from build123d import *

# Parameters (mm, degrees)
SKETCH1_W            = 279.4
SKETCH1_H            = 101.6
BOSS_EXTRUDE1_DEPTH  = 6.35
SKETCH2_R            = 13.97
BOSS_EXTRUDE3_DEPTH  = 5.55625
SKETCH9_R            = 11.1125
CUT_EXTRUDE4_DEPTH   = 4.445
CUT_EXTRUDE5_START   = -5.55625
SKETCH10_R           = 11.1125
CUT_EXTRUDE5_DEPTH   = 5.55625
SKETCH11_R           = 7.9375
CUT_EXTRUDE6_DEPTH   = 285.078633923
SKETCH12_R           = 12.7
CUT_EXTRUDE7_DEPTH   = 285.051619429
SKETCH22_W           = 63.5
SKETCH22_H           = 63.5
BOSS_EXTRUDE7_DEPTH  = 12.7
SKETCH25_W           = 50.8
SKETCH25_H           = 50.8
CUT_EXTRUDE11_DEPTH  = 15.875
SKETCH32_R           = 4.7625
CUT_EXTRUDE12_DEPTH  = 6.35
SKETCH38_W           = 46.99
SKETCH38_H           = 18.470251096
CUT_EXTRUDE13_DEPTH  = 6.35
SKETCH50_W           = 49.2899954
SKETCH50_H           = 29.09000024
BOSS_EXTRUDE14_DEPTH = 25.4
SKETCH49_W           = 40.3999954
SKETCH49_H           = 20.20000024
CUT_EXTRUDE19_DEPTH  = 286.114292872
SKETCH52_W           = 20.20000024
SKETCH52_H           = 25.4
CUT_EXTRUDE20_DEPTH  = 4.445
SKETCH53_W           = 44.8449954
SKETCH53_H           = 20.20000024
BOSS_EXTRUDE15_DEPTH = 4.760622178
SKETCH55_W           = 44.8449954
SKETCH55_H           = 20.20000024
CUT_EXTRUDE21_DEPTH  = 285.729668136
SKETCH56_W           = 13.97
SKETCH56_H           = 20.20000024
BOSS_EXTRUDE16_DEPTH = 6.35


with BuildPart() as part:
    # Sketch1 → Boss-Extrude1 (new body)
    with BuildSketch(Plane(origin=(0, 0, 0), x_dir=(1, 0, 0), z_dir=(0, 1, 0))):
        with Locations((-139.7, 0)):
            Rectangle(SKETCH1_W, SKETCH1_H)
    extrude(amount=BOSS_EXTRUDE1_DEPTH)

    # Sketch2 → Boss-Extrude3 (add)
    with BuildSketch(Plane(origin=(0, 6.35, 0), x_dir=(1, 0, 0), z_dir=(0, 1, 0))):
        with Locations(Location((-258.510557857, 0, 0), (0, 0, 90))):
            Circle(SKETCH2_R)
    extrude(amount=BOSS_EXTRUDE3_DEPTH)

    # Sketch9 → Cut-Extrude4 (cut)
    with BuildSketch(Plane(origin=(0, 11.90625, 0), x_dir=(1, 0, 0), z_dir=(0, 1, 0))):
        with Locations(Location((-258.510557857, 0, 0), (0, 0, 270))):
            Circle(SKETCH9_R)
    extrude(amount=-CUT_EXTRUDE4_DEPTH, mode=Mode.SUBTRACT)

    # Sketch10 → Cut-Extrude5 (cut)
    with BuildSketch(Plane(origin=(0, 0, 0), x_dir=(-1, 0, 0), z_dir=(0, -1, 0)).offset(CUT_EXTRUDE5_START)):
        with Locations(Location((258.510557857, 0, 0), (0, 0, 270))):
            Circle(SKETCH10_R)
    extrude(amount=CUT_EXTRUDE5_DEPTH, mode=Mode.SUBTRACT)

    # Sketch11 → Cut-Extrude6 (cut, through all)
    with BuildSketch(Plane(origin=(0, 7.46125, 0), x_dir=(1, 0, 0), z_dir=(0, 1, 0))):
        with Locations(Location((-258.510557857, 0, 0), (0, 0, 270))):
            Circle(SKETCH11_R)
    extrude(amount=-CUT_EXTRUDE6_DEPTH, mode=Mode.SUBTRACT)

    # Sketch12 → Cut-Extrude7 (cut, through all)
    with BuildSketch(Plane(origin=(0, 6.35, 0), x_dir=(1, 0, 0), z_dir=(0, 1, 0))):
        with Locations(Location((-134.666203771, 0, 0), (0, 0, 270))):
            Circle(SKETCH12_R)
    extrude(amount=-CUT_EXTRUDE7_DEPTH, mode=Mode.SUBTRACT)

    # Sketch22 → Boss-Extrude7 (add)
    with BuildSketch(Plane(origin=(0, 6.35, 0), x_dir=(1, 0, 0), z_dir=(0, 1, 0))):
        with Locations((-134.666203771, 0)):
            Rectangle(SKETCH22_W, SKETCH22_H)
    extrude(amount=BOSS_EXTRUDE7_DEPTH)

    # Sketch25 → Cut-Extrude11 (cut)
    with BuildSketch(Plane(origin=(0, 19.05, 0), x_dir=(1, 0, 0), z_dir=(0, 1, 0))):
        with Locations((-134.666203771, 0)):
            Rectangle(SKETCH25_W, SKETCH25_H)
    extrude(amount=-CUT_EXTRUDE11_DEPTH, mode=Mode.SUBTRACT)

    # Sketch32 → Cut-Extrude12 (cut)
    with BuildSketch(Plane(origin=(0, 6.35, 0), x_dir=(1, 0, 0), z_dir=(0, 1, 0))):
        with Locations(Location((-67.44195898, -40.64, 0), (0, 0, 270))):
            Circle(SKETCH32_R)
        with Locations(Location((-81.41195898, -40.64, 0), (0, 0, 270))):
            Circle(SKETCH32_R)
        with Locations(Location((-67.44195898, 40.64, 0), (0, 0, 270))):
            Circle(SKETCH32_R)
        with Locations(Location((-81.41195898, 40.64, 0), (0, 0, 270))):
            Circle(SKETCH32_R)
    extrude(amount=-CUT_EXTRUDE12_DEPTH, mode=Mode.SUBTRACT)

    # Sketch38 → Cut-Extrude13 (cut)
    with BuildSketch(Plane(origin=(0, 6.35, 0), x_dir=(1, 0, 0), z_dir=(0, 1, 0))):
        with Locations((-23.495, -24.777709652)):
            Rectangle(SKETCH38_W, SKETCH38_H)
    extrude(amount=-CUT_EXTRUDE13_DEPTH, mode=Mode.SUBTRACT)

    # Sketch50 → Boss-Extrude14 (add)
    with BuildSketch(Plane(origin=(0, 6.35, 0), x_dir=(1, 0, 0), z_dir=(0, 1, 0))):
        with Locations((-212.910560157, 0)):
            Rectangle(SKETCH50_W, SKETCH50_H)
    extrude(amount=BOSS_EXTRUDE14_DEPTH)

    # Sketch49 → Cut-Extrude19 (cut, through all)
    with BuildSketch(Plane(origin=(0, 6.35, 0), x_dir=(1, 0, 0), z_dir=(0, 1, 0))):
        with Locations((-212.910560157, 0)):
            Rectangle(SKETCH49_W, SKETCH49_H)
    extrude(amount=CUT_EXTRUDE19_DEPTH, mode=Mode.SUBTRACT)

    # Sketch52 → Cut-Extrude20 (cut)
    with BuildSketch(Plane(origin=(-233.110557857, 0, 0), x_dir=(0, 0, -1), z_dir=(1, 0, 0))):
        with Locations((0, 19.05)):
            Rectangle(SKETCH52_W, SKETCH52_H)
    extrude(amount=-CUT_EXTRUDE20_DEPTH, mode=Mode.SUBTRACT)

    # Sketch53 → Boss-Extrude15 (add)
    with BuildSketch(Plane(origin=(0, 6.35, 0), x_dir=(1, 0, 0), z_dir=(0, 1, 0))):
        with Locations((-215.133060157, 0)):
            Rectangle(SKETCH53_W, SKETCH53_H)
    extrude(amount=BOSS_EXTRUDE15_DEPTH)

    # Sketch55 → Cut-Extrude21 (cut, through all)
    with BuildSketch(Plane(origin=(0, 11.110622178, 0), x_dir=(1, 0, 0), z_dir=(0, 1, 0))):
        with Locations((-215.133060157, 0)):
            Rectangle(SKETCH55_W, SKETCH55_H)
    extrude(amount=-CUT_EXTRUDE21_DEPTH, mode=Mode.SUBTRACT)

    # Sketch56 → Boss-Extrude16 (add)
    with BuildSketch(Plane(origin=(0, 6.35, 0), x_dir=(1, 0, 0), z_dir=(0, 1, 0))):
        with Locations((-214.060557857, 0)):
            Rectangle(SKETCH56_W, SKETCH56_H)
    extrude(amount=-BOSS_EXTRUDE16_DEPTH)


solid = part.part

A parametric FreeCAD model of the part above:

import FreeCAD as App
import Part
import Sketcher
Q = App.Units.Quantity


def add_polygon(sketch, points):
    """Adds a closed chain of lines whose ends are joined by coincident constraints."""
    first, n = sketch.GeometryCount, len(points)
    for a, b in zip(points, points[1:] + points[:1]):
        sketch.addGeometry(Part.LineSegment(App.Vector(*a, 0), App.Vector(*b, 0)), False)
    for i in range(n):
        sketch.addConstraint(Sketcher.Constraint("Coincident", first + i, 2, first + (i + 1) % n, 1))

doc = App.newDocument("Part")
params = doc.addObject("Spreadsheet::Sheet", "Params")
for row, (alias, value) in enumerate([
    ("sketch1_width", "11 in"),
    ("sketch1_height", "4 in"),
    ("pad1_length", "0.25 in"),
    ("sketch2_diameter", "1.1 in"),
    ("pad2_length", "0.21875 in"),
    ("sketch3_diameter", "0.875 in"),
    ("pocket1_length", "0.175 in"),
    ("sketch4_diameter", "0.875 in"),
    ("pocket2_length", "0.21875 in"),
    ("sketch5_diameter", "0.625 in"),
    ("sketch6_diameter", "1 in"),
    ("sketch7_width", "2.5 in"),
    ("pad3_length", "0.5 in"),
    ("sketch8_width", "2 in"),
    ("pocket5_length", "0.625 in"),
    ("sketch9_diameter", "0.375 in"),
    ("pocket6_length", "0.25 in"),
    ("sketch10_width", "1.85 in"),
    ("pocket7_length", "0.25 in"),
    ("pad4_length", "1 in"),
    ("sketch13_width", "1 in"),
    ("pocket9_length", "0.175 in"),
    ("pad5_length", "4.760622 mm"),
    ("sketch16_width", "0.55 in"),
    ("pad6_length", "0.25 in"),
], start=1):
    params.set(f"A{row}", alias)
    params.set(f"B{row}", "=" + value)
    params.setAlias(f"B{row}", alias)

body = doc.addObject("PartDesign::Body", "Body")

sketch1 = body.newObject("Sketcher::SketchObject", "Sketch")
sketch1.AttachmentSupport = (doc.getObject("XZ_Plane"), [""])
sketch1.MapMode = "FlatFace"
add_polygon(sketch1, [(-279, -51), (-279, 51), (0, 51), (0, -51)])
sketch1.addConstraint(Sketcher.Constraint("Vertical", 0))
sketch1.addConstraint(Sketcher.Constraint("Horizontal", 1))
sketch1.addConstraint(Sketcher.Constraint("Vertical", 2))
sketch1.addConstraint(Sketcher.Constraint("Horizontal", 3))
sketch1.addConstraint(Sketcher.Constraint("Symmetric", 1, 2, 2, 2, -1, 1))
sketch1.addConstraint(Sketcher.Constraint("DistanceX", 1, 1, 1, 2, Q("11 in")))
sketch1.addConstraint(Sketcher.Constraint("DistanceY", 0, 1, 0, 2, Q("4 in")))
sketch1.setExpression("Constraints[9]", "Params.sketch1_width")
sketch1.setExpression("Constraints[10]", "Params.sketch1_height")
pad1 = body.newObject("PartDesign::Pad", "Pad")
pad1.Profile = sketch1
pad1.setExpression("Length", "Params.pad1_length")
pad1.Reversed = True

sketch2 = body.newObject("Sketcher::SketchObject", "Sketch001")
sketch2.AttachmentSupport = (doc.getObject("XZ_Plane"), [""])
sketch2.MapMode = "FlatFace"
sketch2.AttachmentOffset = App.Placement(App.Vector(0, 0, -0.25 * 25.4), App.Rotation())
sketch2.addGeometry(Part.Circle(App.Vector(-259, 0, 0), App.Vector(0, 0, 1), 14), False)
sketch2.addConstraint(Sketcher.Constraint("PointOnObject", 0, 3, -1))
sketch2.addConstraint(Sketcher.Constraint("Diameter", 0, Q("1.1 in")))
sketch2.addConstraint(Sketcher.Constraint("DistanceX", 0, 3, -1, 1, Q("258.510558 mm")))
sketch2.setExpression("Constraints[1]", "Params.sketch2_diameter")
pad2 = body.newObject("PartDesign::Pad", "Pad001")
pad2.Profile = sketch2
pad2.setExpression("Length", "Params.pad2_length")
pad2.Reversed = True

sketch3 = body.newObject("Sketcher::SketchObject", "Sketch002")
sketch3.AttachmentSupport = (doc.getObject("XZ_Plane"), [""])
sketch3.MapMode = "FlatFace"
sketch3.AttachmentOffset = App.Placement(App.Vector(0, 0, -0.46875 * 25.4), App.Rotation())
sketch3.addGeometry(Part.Circle(App.Vector(-259, 0, 0), App.Vector(0, 0, 1), 11), False)
sketch3.addConstraint(Sketcher.Constraint("PointOnObject", 0, 3, -1))
sketch3.addConstraint(Sketcher.Constraint("Diameter", 0, Q("0.875 in")))
sketch3.addConstraint(Sketcher.Constraint("DistanceX", 0, 3, -1, 1, Q("258.510558 mm")))
sketch3.setExpression("Constraints[1]", "Params.sketch3_diameter")
pocket1 = body.newObject("PartDesign::Pocket", "Pocket")
pocket1.Profile = sketch3
pocket1.setExpression("Length", "Params.pocket1_length")
pocket1.Reversed = True

sketch4 = body.newObject("Sketcher::SketchObject", "Sketch003")
sketch4.AttachmentSupport = (doc.getObject("XZ_Plane"), [""])
sketch4.MapMode = "FlatFace"
sketch4.AttachmentOffset = App.Placement(App.Vector(0, 0, -0.21875 * 25.4), App.Rotation())
sketch4.addGeometry(Part.Circle(App.Vector(-259, 0, 0), App.Vector(0, 0, 1), 11), False)
sketch4.addConstraint(Sketcher.Constraint("PointOnObject", 0, 3, -1))
sketch4.addConstraint(Sketcher.Constraint("Diameter", 0, Q("0.875 in")))
sketch4.addConstraint(Sketcher.Constraint("DistanceX", 0, 3, -1, 1, Q("258.510558 mm")))
sketch4.setExpression("Constraints[1]", "Params.sketch4_diameter")
pocket2 = body.newObject("PartDesign::Pocket", "Pocket001")
pocket2.Profile = sketch4
pocket2.setExpression("Length", "Params.pocket2_length")
pocket2.Reversed = True

sketch5 = body.newObject("Sketcher::SketchObject", "Sketch004")
sketch5.AttachmentSupport = (doc.getObject("XZ_Plane"), [""])
sketch5.MapMode = "FlatFace"
sketch5.AttachmentOffset = App.Placement(App.Vector(0, 0, -7.46125), App.Rotation())
sketch5.addGeometry(Part.Circle(App.Vector(-259, 0, 0), App.Vector(0, 0, 1), 8), False)
sketch5.addConstraint(Sketcher.Constraint("PointOnObject", 0, 3, -1))
sketch5.addConstraint(Sketcher.Constraint("Diameter", 0, Q("0.625 in")))
sketch5.addConstraint(Sketcher.Constraint("DistanceX", 0, 3, -1, 1, Q("258.510558 mm")))
sketch5.setExpression("Constraints[1]", "Params.sketch5_diameter")
pocket3 = body.newObject("PartDesign::Pocket", "Pocket002")
pocket3.Profile = sketch5
pocket3.Type = "ThroughAll"
pocket3.Reversed = True

sketch6 = body.newObject("Sketcher::SketchObject", "Sketch005")
sketch6.AttachmentSupport = (doc.getObject("XZ_Plane"), [""])
sketch6.MapMode = "FlatFace"
sketch6.AttachmentOffset = App.Placement(App.Vector(0, 0, -0.25 * 25.4), App.Rotation())
sketch6.addGeometry(Part.Circle(App.Vector(-135, 0, 0), App.Vector(0, 0, 1), 13), False)
sketch6.addConstraint(Sketcher.Constraint("PointOnObject", 0, 3, -1))
sketch6.addConstraint(Sketcher.Constraint("Diameter", 0, Q("1 in")))
sketch6.addConstraint(Sketcher.Constraint("DistanceX", 0, 3, -1, 1, Q("134.666204 mm")))
sketch6.setExpression("Constraints[1]", "Params.sketch6_diameter")
pocket4 = body.newObject("PartDesign::Pocket", "Pocket003")
pocket4.Profile = sketch6
pocket4.Type = "ThroughAll"
pocket4.Reversed = True

sketch7 = body.newObject("Sketcher::SketchObject", "Sketch006")
sketch7.AttachmentSupport = (doc.getObject("XZ_Plane"), [""])
sketch7.MapMode = "FlatFace"
sketch7.AttachmentOffset = App.Placement(App.Vector(0, 0, -0.25 * 25.4), App.Rotation())
add_polygon(sketch7, [(-166, -32), (-166, 32), (-103, 32), (-103, -32)])
sketch7.addConstraint(Sketcher.Constraint("Vertical", 0))
sketch7.addConstraint(Sketcher.Constraint("Horizontal", 1))
sketch7.addConstraint(Sketcher.Constraint("Vertical", 2))
sketch7.addConstraint(Sketcher.Constraint("Horizontal", 3))
sketch7.addConstraint(Sketcher.Constraint("Equal", 3, 0))
sketch7.addConstraint(Sketcher.Constraint("DistanceX", 1, 1, 1, 2, Q("2.5 in")))
sketch7.addConstraint(Sketcher.Constraint("DistanceY", -1, 1, 0, 2, Q("1.25 in")))
sketch7.addConstraint(Sketcher.Constraint("DistanceX", 0, 2, -1, 1, Q("166.416204 mm")))
sketch7.setExpression("Constraints[9]", "Params.sketch7_width")
pad3 = body.newObject("PartDesign::Pad", "Pad002")
pad3.Profile = sketch7
pad3.setExpression("Length", "Params.pad3_length")
pad3.Reversed = True

sketch8 = body.newObject("Sketcher::SketchObject", "Sketch007")
sketch8.AttachmentSupport = (doc.getObject("XZ_Plane"), [""])
sketch8.MapMode = "FlatFace"
sketch8.AttachmentOffset = App.Placement(App.Vector(0, 0, -0.75 * 25.4), App.Rotation())
add_polygon(sketch8, [(-160, -25), (-160, 25), (-109, 25), (-109, -25)])
sketch8.addConstraint(Sketcher.Constraint("Vertical", 0))
sketch8.addConstraint(Sketcher.Constraint("Horizontal", 1))
sketch8.addConstraint(Sketcher.Constraint("Vertical", 2))
sketch8.addConstraint(Sketcher.Constraint("Horizontal", 3))
sketch8.addConstraint(Sketcher.Constraint("Equal", 3, 0))
sketch8.addConstraint(Sketcher.Constraint("DistanceX", 1, 1, 1, 2, Q("2 in")))
sketch8.addConstraint(Sketcher.Constraint("DistanceY", -1, 1, 0, 2, Q("1 in")))
sketch8.addConstraint(Sketcher.Constraint("DistanceX", 0, 2, -1, 1, Q("160.066204 mm")))
sketch8.setExpression("Constraints[9]", "Params.sketch8_width")
pocket5 = body.newObject("PartDesign::Pocket", "Pocket004")
pocket5.Profile = sketch8
pocket5.setExpression("Length", "Params.pocket5_length")
pocket5.Reversed = True

sketch9 = body.newObject("Sketcher::SketchObject", "Sketch008")
sketch9.AttachmentSupport = (doc.getObject("XZ_Plane"), [""])
sketch9.MapMode = "FlatFace"
sketch9.AttachmentOffset = App.Placement(App.Vector(0, 0, -0.25 * 25.4), App.Rotation())
sketch9.addGeometry(Part.Circle(App.Vector(-67.4, 40.6, 0), App.Vector(0, 0, 1), 4.8), False)
sketch9.addGeometry(Part.Circle(App.Vector(-81.4, 40.6, 0), App.Vector(0, 0, 1), 4.8), False)
sketch9.addGeometry(Part.Circle(App.Vector(-67.4, -40.6, 0), App.Vector(0, 0, 1), 4.8), False)
sketch9.addGeometry(Part.Circle(App.Vector(-81.4, -40.6, 0), App.Vector(0, 0, 1), 4.8), False)
sketch9.addConstraint(Sketcher.Constraint("Equal", 0, 1))
sketch9.addConstraint(Sketcher.Constraint("Equal", 1, 2))
sketch9.addConstraint(Sketcher.Constraint("Equal", 2, 3))
sketch9.addConstraint(Sketcher.Constraint("Symmetric", 0, 3, 2, 3, -1))
sketch9.addConstraint(Sketcher.Constraint("Symmetric", 1, 3, 3, 3, -1))
sketch9.addConstraint(Sketcher.Constraint("Horizontal", 0, 3, 1, 3))
sketch9.addConstraint(Sketcher.Constraint("Diameter", 0, Q("0.375 in")))
sketch9.addConstraint(Sketcher.Constraint("DistanceY", -1, 1, 0, 3, Q("1.6 in")))
sketch9.addConstraint(Sketcher.Constraint("DistanceX", 1, 3, 0, 3, Q("0.55 in")))
sketch9.addConstraint(Sketcher.Constraint("DistanceX", 0, 3, -1, 1, Q("67.441959 mm")))
sketch9.setExpression("Constraints[6]", "Params.sketch9_diameter")
pocket6 = body.newObject("PartDesign::Pocket", "Pocket005")
pocket6.Profile = sketch9
pocket6.setExpression("Length", "Params.pocket6_length")
pocket6.Reversed = True

sketch10 = body.newObject("Sketcher::SketchObject", "Sketch009")
sketch10.AttachmentSupport = (doc.getObject("XZ_Plane"), [""])
sketch10.MapMode = "FlatFace"
sketch10.AttachmentOffset = App.Placement(App.Vector(0, 0, -0.25 * 25.4), App.Rotation())
add_polygon(sketch10, [(-47, 16), (-47, 34), (0, 34), (0, 16)])
sketch10.addConstraint(Sketcher.Constraint("Vertical", 0))
sketch10.addConstraint(Sketcher.Constraint("Horizontal", 1))
sketch10.addConstraint(Sketcher.Constraint("Vertical", 2))
sketch10.addConstraint(Sketcher.Constraint("Horizontal", 3))
sketch10.addConstraint(Sketcher.Constraint("PointOnObject", 1, 2, -2))
sketch10.addConstraint(Sketcher.Constraint("DistanceX", 1, 1, 1, 2, Q("1.85 in")))
sketch10.addConstraint(Sketcher.Constraint("DistanceY", 0, 1, 0, 2, Q("18.470251 mm")))
sketch10.addConstraint(Sketcher.Constraint("DistanceY", -1, 1, 0, 2, Q("34.012835 mm")))
sketch10.setExpression("Constraints[9]", "Params.sketch10_width")
pocket7 = body.newObject("PartDesign::Pocket", "Pocket006")
pocket7.Profile = sketch10
pocket7.setExpression("Length", "Params.pocket7_length")
pocket7.Reversed = True

sketch11 = body.newObject("Sketcher::SketchObject", "Sketch010")
sketch11.AttachmentSupport = (doc.getObject("XZ_Plane"), [""])
sketch11.MapMode = "FlatFace"
sketch11.AttachmentOffset = App.Placement(App.Vector(0, 0, -0.25 * 25.4), App.Rotation())
add_polygon(sketch11, [(-238, -15), (-238, 15), (-188, 15), (-188, -15)])
sketch11.addConstraint(Sketcher.Constraint("Vertical", 0))
sketch11.addConstraint(Sketcher.Constraint("Horizontal", 1))
sketch11.addConstraint(Sketcher.Constraint("Vertical", 2))
sketch11.addConstraint(Sketcher.Constraint("Horizontal", 3))
sketch11.addConstraint(Sketcher.Constraint("DistanceY", 0, 1, 0, 2, Q("29.09 mm")))
sketch11.addConstraint(Sketcher.Constraint("DistanceY", -1, 1, 0, 2, Q("14.545 mm")))
sketch11.addConstraint(Sketcher.Constraint("DistanceX", 1, 1, 1, 2, Q("49.289995 mm")))
sketch11.addConstraint(Sketcher.Constraint("DistanceX", 0, 2, -1, 1, Q("237.555558 mm")))
pad4 = body.newObject("PartDesign::Pad", "Pad003")
pad4.Profile = sketch11
pad4.setExpression("Length", "Params.pad4_length")
pad4.Reversed = True

sketch12 = body.newObject("Sketcher::SketchObject", "Sketch011")
sketch12.AttachmentSupport = (doc.getObject("XZ_Plane"), [""])
sketch12.MapMode = "FlatFace"
sketch12.AttachmentOffset = App.Placement(App.Vector(0, 0, -0.25 * 25.4), App.Rotation())
add_polygon(sketch12, [(-233, -10), (-233, 10), (-193, 10), (-193, -10)])
sketch12.addConstraint(Sketcher.Constraint("Vertical", 0))
sketch12.addConstraint(Sketcher.Constraint("Horizontal", 1))
sketch12.addConstraint(Sketcher.Constraint("Vertical", 2))
sketch12.addConstraint(Sketcher.Constraint("Horizontal", 3))
sketch12.addConstraint(Sketcher.Constraint("DistanceY", 0, 1, 0, 2, Q("20.2 mm")))
sketch12.addConstraint(Sketcher.Constraint("DistanceY", -1, 1, 0, 2, Q("10.1 mm")))
sketch12.addConstraint(Sketcher.Constraint("DistanceX", 1, 1, 1, 2, Q("40.399995 mm")))
sketch12.addConstraint(Sketcher.Constraint("DistanceX", 0, 2, -1, 1, Q("233.110558 mm")))
pocket8 = body.newObject("PartDesign::Pocket", "Pocket007")
pocket8.Profile = sketch12
pocket8.Type = "ThroughAll"

sketch13 = body.newObject("Sketcher::SketchObject", "Sketch012")
sketch13.AttachmentSupport = (doc.getObject("YZ_Plane"), [""])
sketch13.MapMode = "FlatFace"
sketch13.AttachmentOffset = App.Placement(App.Vector(0, 0, -233.110558), App.Rotation())
add_polygon(sketch13, [(32, 10), (6, 10), (6, -10), (32, -10)])
sketch13.addConstraint(Sketcher.Constraint("Horizontal", 0))
sketch13.addConstraint(Sketcher.Constraint("Vertical", 1))
sketch13.addConstraint(Sketcher.Constraint("Horizontal", 2))
sketch13.addConstraint(Sketcher.Constraint("Vertical", 3))
sketch13.addConstraint(Sketcher.Constraint("DistanceX", 0, 2, 0, 1, Q("1 in")))
sketch13.addConstraint(Sketcher.Constraint("DistanceX", -1, 1, 0, 2, Q("0.25 in")))
sketch13.addConstraint(Sketcher.Constraint("DistanceY", 1, 2, 1, 1, Q("20.2 mm")))
sketch13.addConstraint(Sketcher.Constraint("DistanceY", -1, 1, 0, 2, Q("10.1 mm")))
sketch13.setExpression("Constraints[8]", "Params.sketch13_width")
pocket9 = body.newObject("PartDesign::Pocket", "Pocket008")
pocket9.Profile = sketch13
pocket9.setExpression("Length", "Params.pocket9_length")

sketch14 = body.newObject("Sketcher::SketchObject", "Sketch013")
sketch14.AttachmentSupport = (doc.getObject("XZ_Plane"), [""])
sketch14.MapMode = "FlatFace"
sketch14.AttachmentOffset = App.Placement(App.Vector(0, 0, -0.25 * 25.4), App.Rotation())
add_polygon(sketch14, [(-238, -10), (-238, 10), (-193, 10), (-193, -10)])
sketch14.addConstraint(Sketcher.Constraint("Vertical", 0))
sketch14.addConstraint(Sketcher.Constraint("Horizontal", 1))
sketch14.addConstraint(Sketcher.Constraint("Vertical", 2))
sketch14.addConstraint(Sketcher.Constraint("Horizontal", 3))
sketch14.addConstraint(Sketcher.Constraint("DistanceY", 0, 1, 0, 2, Q("20.2 mm")))
sketch14.addConstraint(Sketcher.Constraint("DistanceY", -1, 1, 0, 2, Q("10.1 mm")))
sketch14.addConstraint(Sketcher.Constraint("DistanceX", 1, 1, 1, 2, Q("44.844995 mm")))
sketch14.addConstraint(Sketcher.Constraint("DistanceX", 0, 2, -1, 1, Q("237.555558 mm")))
pad5 = body.newObject("PartDesign::Pad", "Pad004")
pad5.Profile = sketch14
pad5.setExpression("Length", "Params.pad5_length")
pad5.Reversed = True

sketch15 = body.newObject("Sketcher::SketchObject", "Sketch014")
sketch15.AttachmentSupport = (doc.getObject("XZ_Plane"), [""])
sketch15.MapMode = "FlatFace"
sketch15.AttachmentOffset = App.Placement(App.Vector(0, 0, -11.110622), App.Rotation())
add_polygon(sketch15, [(-238, -10), (-238, 10), (-193, 10), (-193, -10)])
sketch15.addConstraint(Sketcher.Constraint("Vertical", 0))
sketch15.addConstraint(Sketcher.Constraint("Horizontal", 1))
sketch15.addConstraint(Sketcher.Constraint("Vertical", 2))
sketch15.addConstraint(Sketcher.Constraint("Horizontal", 3))
sketch15.addConstraint(Sketcher.Constraint("DistanceY", 0, 1, 0, 2, Q("20.2 mm")))
sketch15.addConstraint(Sketcher.Constraint("DistanceY", -1, 1, 0, 2, Q("10.1 mm")))
sketch15.addConstraint(Sketcher.Constraint("DistanceX", 1, 1, 1, 2, Q("44.844995 mm")))
sketch15.addConstraint(Sketcher.Constraint("DistanceX", 0, 2, -1, 1, Q("237.555558 mm")))
pocket10 = body.newObject("PartDesign::Pocket", "Pocket009")
pocket10.Profile = sketch15
pocket10.Type = "ThroughAll"
pocket10.Reversed = True

sketch16 = body.newObject("Sketcher::SketchObject", "Sketch015")
sketch16.AttachmentSupport = (doc.getObject("XZ_Plane"), [""])
sketch16.MapMode = "FlatFace"
sketch16.AttachmentOffset = App.Placement(App.Vector(0, 0, -0.25 * 25.4), App.Rotation())
add_polygon(sketch16, [(-221, -10), (-221, 10), (-207, 10), (-207, -10)])
sketch16.addConstraint(Sketcher.Constraint("Vertical", 0))
sketch16.addConstraint(Sketcher.Constraint("Horizontal", 1))
sketch16.addConstraint(Sketcher.Constraint("Vertical", 2))
sketch16.addConstraint(Sketcher.Constraint("Horizontal", 3))
sketch16.addConstraint(Sketcher.Constraint("DistanceX", 1, 1, 1, 2, Q("0.55 in")))
sketch16.addConstraint(Sketcher.Constraint("DistanceY", 0, 1, 0, 2, Q("20.2 mm")))
sketch16.addConstraint(Sketcher.Constraint("DistanceY", -1, 1, 0, 2, Q("10.1 mm")))
sketch16.addConstraint(Sketcher.Constraint("DistanceX", 0, 2, -1, 1, Q("221.045558 mm")))
sketch16.setExpression("Constraints[8]", "Params.sketch16_width")
pad6 = body.newObject("PartDesign::Pad", "Pad005")
pad6.Profile = sketch16
pad6.setExpression("Length", "Params.pad6_length")

doc.recompute()
